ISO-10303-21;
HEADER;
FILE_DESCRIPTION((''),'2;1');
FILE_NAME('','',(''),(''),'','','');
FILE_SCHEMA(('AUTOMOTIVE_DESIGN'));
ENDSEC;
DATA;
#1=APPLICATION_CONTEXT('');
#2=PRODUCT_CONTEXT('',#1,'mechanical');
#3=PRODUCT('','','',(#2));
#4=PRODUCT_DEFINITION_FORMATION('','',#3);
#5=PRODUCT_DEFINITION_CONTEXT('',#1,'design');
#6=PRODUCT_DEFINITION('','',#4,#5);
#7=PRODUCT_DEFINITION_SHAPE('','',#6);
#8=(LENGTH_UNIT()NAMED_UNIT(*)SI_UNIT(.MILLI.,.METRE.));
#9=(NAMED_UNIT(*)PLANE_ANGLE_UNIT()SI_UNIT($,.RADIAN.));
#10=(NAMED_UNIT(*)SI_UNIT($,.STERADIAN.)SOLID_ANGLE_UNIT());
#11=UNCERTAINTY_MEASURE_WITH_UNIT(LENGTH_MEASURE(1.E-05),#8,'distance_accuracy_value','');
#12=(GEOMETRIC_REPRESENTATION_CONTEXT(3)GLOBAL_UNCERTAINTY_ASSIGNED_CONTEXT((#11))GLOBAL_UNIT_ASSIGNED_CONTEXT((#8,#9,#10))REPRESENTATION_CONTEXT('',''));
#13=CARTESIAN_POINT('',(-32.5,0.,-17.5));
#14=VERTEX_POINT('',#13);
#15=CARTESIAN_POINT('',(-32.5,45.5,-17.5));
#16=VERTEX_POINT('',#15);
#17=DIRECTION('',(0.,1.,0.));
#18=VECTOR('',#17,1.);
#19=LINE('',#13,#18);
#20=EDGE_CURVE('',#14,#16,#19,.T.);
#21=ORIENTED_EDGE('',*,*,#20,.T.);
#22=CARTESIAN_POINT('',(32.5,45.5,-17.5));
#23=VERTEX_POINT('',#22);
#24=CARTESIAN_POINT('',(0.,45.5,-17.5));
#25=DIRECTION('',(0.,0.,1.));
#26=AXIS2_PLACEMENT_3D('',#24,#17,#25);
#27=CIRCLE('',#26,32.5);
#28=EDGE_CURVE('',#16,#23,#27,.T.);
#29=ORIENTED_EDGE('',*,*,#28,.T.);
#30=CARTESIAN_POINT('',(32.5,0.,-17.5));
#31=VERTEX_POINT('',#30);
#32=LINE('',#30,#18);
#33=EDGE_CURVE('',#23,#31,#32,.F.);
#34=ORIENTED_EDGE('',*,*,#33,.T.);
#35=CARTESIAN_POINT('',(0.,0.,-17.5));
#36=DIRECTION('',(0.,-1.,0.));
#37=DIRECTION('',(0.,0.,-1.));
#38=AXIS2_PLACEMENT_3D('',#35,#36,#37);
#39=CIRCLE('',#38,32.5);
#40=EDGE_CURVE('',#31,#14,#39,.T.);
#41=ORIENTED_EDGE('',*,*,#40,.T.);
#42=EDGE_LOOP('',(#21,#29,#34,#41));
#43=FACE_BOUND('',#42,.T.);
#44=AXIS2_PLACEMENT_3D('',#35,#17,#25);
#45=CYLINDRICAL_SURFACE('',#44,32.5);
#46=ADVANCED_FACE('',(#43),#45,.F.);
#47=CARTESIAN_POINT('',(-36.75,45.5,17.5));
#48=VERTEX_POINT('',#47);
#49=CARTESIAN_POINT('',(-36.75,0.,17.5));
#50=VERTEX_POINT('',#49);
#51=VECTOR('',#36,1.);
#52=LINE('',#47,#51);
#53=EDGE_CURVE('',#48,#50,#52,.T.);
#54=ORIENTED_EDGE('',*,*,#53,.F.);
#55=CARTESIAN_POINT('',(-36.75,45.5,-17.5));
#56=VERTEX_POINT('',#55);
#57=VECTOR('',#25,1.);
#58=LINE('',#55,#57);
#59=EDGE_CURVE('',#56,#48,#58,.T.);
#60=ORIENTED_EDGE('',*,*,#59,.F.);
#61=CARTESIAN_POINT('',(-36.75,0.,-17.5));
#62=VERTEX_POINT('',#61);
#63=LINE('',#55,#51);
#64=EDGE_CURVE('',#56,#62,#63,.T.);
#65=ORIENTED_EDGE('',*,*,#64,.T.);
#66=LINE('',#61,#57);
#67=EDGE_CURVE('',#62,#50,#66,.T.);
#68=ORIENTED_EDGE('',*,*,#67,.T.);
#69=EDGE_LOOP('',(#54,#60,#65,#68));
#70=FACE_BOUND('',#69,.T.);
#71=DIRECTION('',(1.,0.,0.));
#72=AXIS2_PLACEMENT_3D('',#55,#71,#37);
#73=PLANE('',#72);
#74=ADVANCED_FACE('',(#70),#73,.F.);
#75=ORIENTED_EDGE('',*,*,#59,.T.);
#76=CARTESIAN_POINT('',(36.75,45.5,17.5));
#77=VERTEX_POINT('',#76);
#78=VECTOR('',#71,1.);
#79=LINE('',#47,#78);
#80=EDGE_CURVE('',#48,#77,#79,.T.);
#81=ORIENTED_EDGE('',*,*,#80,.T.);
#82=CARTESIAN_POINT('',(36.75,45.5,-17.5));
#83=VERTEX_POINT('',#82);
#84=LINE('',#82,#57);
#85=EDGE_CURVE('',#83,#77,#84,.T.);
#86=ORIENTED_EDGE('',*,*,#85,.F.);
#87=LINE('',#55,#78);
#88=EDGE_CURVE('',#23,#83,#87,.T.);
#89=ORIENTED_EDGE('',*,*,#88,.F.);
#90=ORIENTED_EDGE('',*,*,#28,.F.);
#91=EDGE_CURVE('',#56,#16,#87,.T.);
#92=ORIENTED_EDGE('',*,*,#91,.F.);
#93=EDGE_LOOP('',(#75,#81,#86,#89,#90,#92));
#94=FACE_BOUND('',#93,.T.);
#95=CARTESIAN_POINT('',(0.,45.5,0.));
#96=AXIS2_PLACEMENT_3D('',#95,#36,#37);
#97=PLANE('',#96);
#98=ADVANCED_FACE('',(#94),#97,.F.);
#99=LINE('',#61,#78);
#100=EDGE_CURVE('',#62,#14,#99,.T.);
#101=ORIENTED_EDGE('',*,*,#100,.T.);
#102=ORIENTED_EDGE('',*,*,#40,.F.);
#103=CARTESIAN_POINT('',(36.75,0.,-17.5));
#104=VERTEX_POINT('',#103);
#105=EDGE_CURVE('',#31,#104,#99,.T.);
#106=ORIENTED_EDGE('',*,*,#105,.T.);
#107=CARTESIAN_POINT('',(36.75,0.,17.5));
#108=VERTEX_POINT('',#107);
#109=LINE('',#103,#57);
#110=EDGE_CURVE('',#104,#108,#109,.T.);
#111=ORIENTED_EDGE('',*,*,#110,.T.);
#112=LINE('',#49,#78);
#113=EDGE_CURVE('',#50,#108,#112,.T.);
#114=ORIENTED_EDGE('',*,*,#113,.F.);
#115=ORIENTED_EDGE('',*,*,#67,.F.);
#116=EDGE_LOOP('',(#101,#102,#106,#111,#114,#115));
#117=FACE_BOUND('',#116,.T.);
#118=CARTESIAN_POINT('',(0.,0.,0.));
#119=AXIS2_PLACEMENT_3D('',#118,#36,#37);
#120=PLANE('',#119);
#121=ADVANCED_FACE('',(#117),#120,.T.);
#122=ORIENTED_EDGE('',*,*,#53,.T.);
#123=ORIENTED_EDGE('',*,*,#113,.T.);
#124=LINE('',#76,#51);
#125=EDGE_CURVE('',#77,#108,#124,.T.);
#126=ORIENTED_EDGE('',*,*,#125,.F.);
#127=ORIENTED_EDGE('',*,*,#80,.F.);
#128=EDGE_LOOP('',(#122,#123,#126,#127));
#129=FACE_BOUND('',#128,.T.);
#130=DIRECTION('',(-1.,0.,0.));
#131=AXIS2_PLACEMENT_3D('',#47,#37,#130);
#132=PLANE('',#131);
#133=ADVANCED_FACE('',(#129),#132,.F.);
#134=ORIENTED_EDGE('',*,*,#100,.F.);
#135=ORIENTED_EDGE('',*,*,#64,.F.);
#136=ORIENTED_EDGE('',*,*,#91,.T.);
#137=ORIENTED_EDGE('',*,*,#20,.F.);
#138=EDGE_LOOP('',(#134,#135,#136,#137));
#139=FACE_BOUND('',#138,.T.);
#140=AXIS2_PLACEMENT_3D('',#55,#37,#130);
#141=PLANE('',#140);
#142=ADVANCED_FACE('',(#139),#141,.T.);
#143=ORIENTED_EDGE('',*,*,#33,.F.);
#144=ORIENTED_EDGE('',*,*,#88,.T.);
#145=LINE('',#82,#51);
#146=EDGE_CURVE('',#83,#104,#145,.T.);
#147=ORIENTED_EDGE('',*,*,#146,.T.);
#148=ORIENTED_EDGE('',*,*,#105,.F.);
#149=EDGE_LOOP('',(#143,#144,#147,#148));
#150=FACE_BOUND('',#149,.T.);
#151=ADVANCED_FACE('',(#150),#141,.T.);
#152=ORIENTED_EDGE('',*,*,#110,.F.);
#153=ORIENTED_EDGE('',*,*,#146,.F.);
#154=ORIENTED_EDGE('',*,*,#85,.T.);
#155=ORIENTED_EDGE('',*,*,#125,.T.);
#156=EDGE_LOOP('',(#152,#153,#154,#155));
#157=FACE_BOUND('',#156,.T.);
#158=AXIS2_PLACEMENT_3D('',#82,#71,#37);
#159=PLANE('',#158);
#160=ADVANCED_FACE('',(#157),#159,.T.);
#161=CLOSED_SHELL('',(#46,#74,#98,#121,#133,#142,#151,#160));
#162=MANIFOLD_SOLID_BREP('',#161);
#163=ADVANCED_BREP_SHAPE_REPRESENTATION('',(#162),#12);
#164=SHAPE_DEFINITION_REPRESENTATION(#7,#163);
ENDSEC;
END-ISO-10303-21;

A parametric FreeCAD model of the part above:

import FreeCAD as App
import Part
import Sketcher
from FreeCAD import Vector


def add_polygon(sketch, points):
    """Adds a closed chain of lines whose ends are joined by coincident constraints."""
    first, n = sketch.GeometryCount, len(points)
    for a, b in zip(points, points[1:] + points[:1]):
        sketch.addGeometry(Part.LineSegment(App.Vector(*a, 0), App.Vector(*b, 0)), False)
    for i in range(n):
        sketch.addConstraint(Sketcher.Constraint("Coincident", first + i, 2, first + (i + 1) % n, 1))

doc = App.newDocument("Part")
body = doc.addObject("PartDesign::Body", "Body")

# Sketch on XZ plane
sketch1 = doc.addObject("Sketcher::SketchObject", "Sketch")
body.addObject(sketch1)
sketch1.AttachmentSupport = (doc.XZ_Plane, [""])
sketch1.MapMode = "FlatFace"
add_polygon(sketch1, [(-36.75, -17.5), (-36.75, 17.5), (36.75, 17.5), (36.75, -17.5)])  # lines 0-3
sketch1.addConstraint(Sketcher.Constraint("Vertical", 0))
sketch1.addConstraint(Sketcher.Constraint("Horizontal", 1))
sketch1.addConstraint(Sketcher.Constraint("Vertical", 2))
sketch1.addConstraint(Sketcher.Constraint("Horizontal", 3))
sketch1.addConstraint(Sketcher.Constraint("Symmetric", 0, 2, 2, 2, -1, 1))
sketch1.addConstraint(Sketcher.Constraint("DistanceY", 0, 1, 0, 2, 35.0))
sketch1.addConstraint(Sketcher.Constraint("DistanceX", 1, 1, 1, 2, 73.5))
pad1 = doc.addObject("PartDesign::Pad", "Pad")
body.addObject(pad1)
pad1.Profile = sketch1
pad1.Length = 45.5
pad1.Reversed = True

# Sketch on XZ plane
sketch2 = doc.addObject("Sketcher::SketchObject", "Sketch001")
body.addObject(sketch2)
sketch2.AttachmentSupport = (doc.XZ_Plane, [""])
sketch2.MapMode = "FlatFace"
sketch2.AttachmentOffset = App.Placement(Vector(0, 0, -45.5), App.Rotation())
sketch2.addGeometry(Part.Circle(Vector(0, -17.5, 0), Vector(0, 0, 1), 32.5), False)
sketch2.addConstraint(Sketcher.Constraint("PointOnObject", 0, 3, -2))
sketch2.addConstraint(Sketcher.Constraint("Diameter", 0, 65.0))
sketch2.addConstraint(Sketcher.Constraint("DistanceY", 0, 3, -1, 1, 17.5))
pocket1 = doc.addObject("PartDesign::Pocket", "Pocket")
body.addObject(pocket1)
pocket1.Profile = sketch2
pocket1.Type = "ThroughAll"
pocket1.Reversed = True

doc.recompute()
